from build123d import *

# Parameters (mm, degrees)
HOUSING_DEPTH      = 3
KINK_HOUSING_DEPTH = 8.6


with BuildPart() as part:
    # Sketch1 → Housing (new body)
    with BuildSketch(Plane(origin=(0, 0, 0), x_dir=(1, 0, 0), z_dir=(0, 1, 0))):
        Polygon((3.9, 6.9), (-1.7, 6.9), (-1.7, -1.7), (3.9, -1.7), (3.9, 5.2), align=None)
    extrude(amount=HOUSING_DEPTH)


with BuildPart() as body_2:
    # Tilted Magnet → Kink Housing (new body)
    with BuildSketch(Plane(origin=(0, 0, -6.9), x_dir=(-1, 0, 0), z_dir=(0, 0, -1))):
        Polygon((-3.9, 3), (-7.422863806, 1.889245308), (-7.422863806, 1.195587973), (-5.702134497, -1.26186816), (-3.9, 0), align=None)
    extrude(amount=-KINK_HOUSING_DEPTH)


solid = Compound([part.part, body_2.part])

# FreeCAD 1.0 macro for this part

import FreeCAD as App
import Part
import Sketcher
from FreeCAD import Vector
Q = App.Units.Quantity

doc = App.newDocument("Part")
body = doc.addObject("PartDesign::Body", "Body")

sketch1 = body.newObject("Sketcher::SketchObject", "Sketch")
sketch1.AttachmentSupport = (doc.getObject("XZ_Plane"), [""])
sketch1.MapMode = "FlatFace"
sketch1.addGeometry([
    Part.LineSegment(Vector(3.9, -6.9, 0), Vector(-1.7, -6.9, 0)),
    Part.LineSegment(Vector(-1.7, -6.9, 0), Vector(-1.7, 1.7, 0)),
    Part.LineSegment(Vector(-1.7, 1.7, 0), Vector(3.9, 1.7, 0)),
    Part.LineSegment(Vector(3.9, 1.7, 0), Vector(3.9, -6.9, 0)),
], False)
sketch1.addConstraint([
    Sketcher.Constraint("Coincident", 0, 2, 1, 1),
    Sketcher.Constraint("Coincident", 1, 2, 2, 1),
    Sketcher.Constraint("Coincident", 2, 2, 3, 1),
    Sketcher.Constraint("Coincident", 3, 2, 0, 1),
    Sketcher.Constraint("Horizontal", 0),
    Sketcher.Constraint("Vertical", 1),
    Sketcher.Constraint("Horizontal", 2),
    Sketcher.Constraint("Vertical", 3),
    Sketcher.Constraint("DistanceX", 0, 2, 0, 1, 5.6),
    Sketcher.Constraint("DistanceY", 1, 1, 1, 2, 8.6),
    Sketcher.Constraint("DistanceX", 0, 2, -1, 1, 1.7),
    Sketcher.Constraint("DistanceY", 0, 2, -1, 1, 6.9),
])
pad1 = body.newObject("PartDesign::Pad", "Pad")
pad1.Profile = sketch1
pad1.Length = 3
pad1.Reversed = True
body2 = doc.addObject("PartDesign::Body", "Body001")

sketch2 = body2.newObject("Sketcher::SketchObject", "Sketch001")
sketch2.AttachmentSupport = (doc.getObject("XY_Plane001"), [""])
sketch2.MapMode = "FlatFace"
sketch2.AttachmentOffset = App.Placement(Vector(0, 0, -6.9), App.Rotation())
sketch2.addGeometry([
    Part.LineSegment(Vector(3.9, 3, 0), Vector(7.422864, 1.889245, 0)),
    Part.LineSegment(Vector(7.422864, 1.889245, 0), Vector(7.422864, 1.195588, 0)),
    Part.LineSegment(Vector(7.422864, 1.195588, 0), Vector(5.702134, -1.261868, 0)),
    Part.LineSegment(Vector(5.702134, -1.261868, 0), Vector(3.9, 0, 0)),
    Part.LineSegment(Vector(3.9, 0, 0), Vector(3.9, 3, 0)),
], False)
sketch2.addConstraint([
    Sketcher.Constraint("Coincident", 0, 2, 1, 1),
    Sketcher.Constraint("Coincident", 1, 2, 2, 1),
    Sketcher.Constraint("Coincident", 2, 2, 3, 1),
    Sketcher.Constraint("Coincident", 3, 2, 4, 1),
    Sketcher.Constraint("Coincident", 4, 2, 0, 1),
    Sketcher.Constraint("Vertical", 1),
    Sketcher.Constraint("Vertical", 4),
    Sketcher.Constraint("PointOnObject", 3, 2, -1),
    Sketcher.Constraint("Perpendicular", 2, 3),
    Sketcher.Constraint("DistanceY", 4, 1, 4, 2, 3.0),
    Sketcher.Constraint("Angle", 2, Q("-125 deg")),
    Sketcher.Constraint("Distance", 2, 3.0),
    Sketcher.Constraint("Angle", 0, Q("-17.5 deg")),
    Sketcher.Constraint("Distance", 3, 2.2),
    Sketcher.Constraint("DistanceX", -1, 1, 3, 2, 3.9),
])
pad2 = body2.newObject("PartDesign::Pad", "Pad001")
pad2.Profile = sketch2
pad2.Length = 8.6

doc.recompute()
